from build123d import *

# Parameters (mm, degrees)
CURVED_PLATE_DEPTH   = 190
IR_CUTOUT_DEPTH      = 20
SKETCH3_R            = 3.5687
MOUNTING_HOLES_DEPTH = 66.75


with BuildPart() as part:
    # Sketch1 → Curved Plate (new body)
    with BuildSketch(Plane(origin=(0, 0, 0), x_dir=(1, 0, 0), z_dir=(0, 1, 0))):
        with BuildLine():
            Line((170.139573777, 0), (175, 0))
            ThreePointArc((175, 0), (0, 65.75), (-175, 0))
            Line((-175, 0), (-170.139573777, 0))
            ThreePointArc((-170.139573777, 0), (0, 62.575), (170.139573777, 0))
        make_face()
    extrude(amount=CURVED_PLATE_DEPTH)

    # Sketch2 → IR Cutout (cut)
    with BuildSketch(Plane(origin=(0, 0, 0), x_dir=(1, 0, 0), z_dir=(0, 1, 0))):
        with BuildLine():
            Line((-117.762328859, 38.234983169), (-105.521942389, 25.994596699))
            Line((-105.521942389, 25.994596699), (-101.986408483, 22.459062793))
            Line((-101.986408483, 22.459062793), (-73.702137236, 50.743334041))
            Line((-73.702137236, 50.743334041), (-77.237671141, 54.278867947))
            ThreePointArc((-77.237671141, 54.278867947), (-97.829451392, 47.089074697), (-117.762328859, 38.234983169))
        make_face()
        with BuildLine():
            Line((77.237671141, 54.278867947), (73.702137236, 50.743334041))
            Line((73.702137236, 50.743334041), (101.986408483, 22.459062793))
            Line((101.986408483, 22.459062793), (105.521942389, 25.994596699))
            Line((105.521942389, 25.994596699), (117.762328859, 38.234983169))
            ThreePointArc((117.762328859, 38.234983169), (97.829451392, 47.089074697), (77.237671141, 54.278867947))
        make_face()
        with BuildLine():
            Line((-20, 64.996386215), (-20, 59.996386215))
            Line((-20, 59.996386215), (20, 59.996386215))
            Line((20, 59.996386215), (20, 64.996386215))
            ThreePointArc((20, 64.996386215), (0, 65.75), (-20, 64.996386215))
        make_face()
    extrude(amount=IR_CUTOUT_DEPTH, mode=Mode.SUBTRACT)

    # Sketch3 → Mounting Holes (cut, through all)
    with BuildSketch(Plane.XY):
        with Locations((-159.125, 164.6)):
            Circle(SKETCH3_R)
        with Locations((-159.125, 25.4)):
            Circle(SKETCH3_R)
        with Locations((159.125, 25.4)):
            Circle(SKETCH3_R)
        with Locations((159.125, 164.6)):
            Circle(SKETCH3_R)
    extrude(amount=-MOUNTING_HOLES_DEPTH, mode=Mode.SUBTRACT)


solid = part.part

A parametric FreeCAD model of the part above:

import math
import FreeCAD as App
import Part
import Sketcher

V = App.Vector
Q = App.Units.Quantity

doc = App.newDocument("Part")
body = doc.addObject("PartDesign::Body", "Body")

# Sketch on XZ plane
sketch1 = body.newObject("Sketcher::SketchObject", "Sketch")
sketch1.AttachmentSupport = (doc.getObject("XZ_Plane"), [""])
sketch1.MapMode = "FlatFace"
sketch1.addGeometry(Part.LineSegment(V(170.1, 0, 0), V(175, 0, 0)), False)
sketch1.addGeometry(Part.ArcOfCircle(Part.Circle(V(0, 200, 0), V(0, 0, 1), 265.8), math.radians(-131), math.radians(-49)), False)
sketch1.addGeometry(Part.LineSegment(V(-175, 0, 0), V(-170.1, 0, 0)), False)
sketch1.addGeometry(Part.ArcOfCircle(Part.Circle(V(0, 200, 0), V(0, 0, 1), 262.6), math.radians(-130), math.radians(-50)), False)
sketch1.addConstraint(Sketcher.Constraint("Coincident", 0, 2, 1, 2))
sketch1.addConstraint(Sketcher.Constraint("Coincident", 1, 1, 2, 1))
sketch1.addConstraint(Sketcher.Constraint("Coincident", 2, 2, 3, 1))
sketch1.addConstraint(Sketcher.Constraint("Coincident", 3, 2, 0, 1))
sketch1.addConstraint(Sketcher.Constraint("Horizontal", 0))
sketch1.addConstraint(Sketcher.Constraint("Horizontal", 2))
sketch1.addConstraint(Sketcher.Constraint("Coincident", 3, 3, 1, 3))
sketch1.addConstraint(Sketcher.Constraint("Symmetric", 0, 2, 1, 1, -1, 1))
sketch1.addConstraint(Sketcher.Constraint("PointOnObject", 1, 3, -2))
sketch1.addConstraint(Sketcher.Constraint("DistanceX", -1, 1, 0, 2, Q("175 mm")))
sketch1.addConstraint(Sketcher.Constraint("Radius", 1, Q("265.764734 mm")))
sketch1.addConstraint(Sketcher.Constraint("Radius", 3, Q("262.589734 mm")))
pad1 = body.newObject("PartDesign::Pad", "Pad")
pad1.Profile = sketch1
pad1.Length = 190
pad1.Reversed = True

# Sketch on XZ plane
sketch2 = body.newObject("Sketcher::SketchObject", "Sketch001")
sketch2.AttachmentSupport = (doc.getObject("XZ_Plane"), [""])
sketch2.MapMode = "FlatFace"
sketch2.addGeometry(Part.LineSegment(V(-117.8, -38.2, 0), V(-102, -22.5, 0)), False)
sketch2.addGeometry(Part.LineSegment(V(-102, -22.5, 0), V(-73.7, -50.7, 0)), False)
sketch2.addGeometry(Part.LineSegment(V(-73.7, -50.7, 0), V(-77.2, -54.3, 0)), False)
sketch2.addGeometry(Part.ArcOfCircle(Part.Circle(V(0, 200, 0), V(0, 0, 1), 265.8), math.radians(-116.3), math.radians(-106.9)), False)
sketch2.addGeometry(Part.LineSegment(V(77.2, -54.3, 0), V(73.7, -50.7, 0)), False)
sketch2.addGeometry(Part.LineSegment(V(73.7, -50.7, 0), V(102, -22.5, 0)), False)
sketch2.addGeometry(Part.LineSegment(V(102, -22.5, 0), V(117.8, -38.2, 0)), False)
sketch2.addGeometry(Part.ArcOfCircle(Part.Circle(V(0, 200, 0), V(0, 0, 1), 265.8), math.radians(-73.1), math.radians(-63.7)), False)
sketch2.addGeometry(Part.LineSegment(V(-20, -65, 0), V(-20, -60, 0)), False)
sketch2.addGeometry(Part.LineSegment(V(-20, -60, 0), V(20, -60, 0)), False)
sketch2.addGeometry(Part.LineSegment(V(20, -60, 0), V(20, -65, 0)), False)
sketch2.addGeometry(Part.ArcOfCircle(Part.Circle(V(0, 200, 0), V(0, 0, 1), 265.8), math.radians(-94.32), math.radians(-85.68)), False)
sketch2.addConstraint(Sketcher.Constraint("Coincident", 0, 2, 1, 1))
sketch2.addConstraint(Sketcher.Constraint("Coincident", 1, 2, 2, 1))
sketch2.addConstraint(Sketcher.Constraint("Coincident", 2, 2, 3, 2))
sketch2.addConstraint(Sketcher.Constraint("Coincident", 3, 1, 0, 1))
sketch2.addConstraint(Sketcher.Constraint("Coincident", 4, 2, 5, 1))
sketch2.addConstraint(Sketcher.Constraint("Coincident", 5, 2, 6, 1))
sketch2.addConstraint(Sketcher.Constraint("Coincident", 6, 2, 7, 2))
sketch2.addConstraint(Sketcher.Constraint("Coincident", 7, 1, 4, 1))
sketch2.addConstraint(Sketcher.Constraint("Coincident", 8, 2, 9, 1))
sketch2.addConstraint(Sketcher.Constraint("Coincident", 9, 2, 10, 1))
sketch2.addConstraint(Sketcher.Constraint("Coincident", 10, 2, 11, 2))
sketch2.addConstraint(Sketcher.Constraint("Coincident", 11, 1, 8, 1))
sketch2.addConstraint(Sketcher.Constraint("Vertical", 8))
sketch2.addConstraint(Sketcher.Constraint("Horizontal", 9))
sketch2.addConstraint(Sketcher.Constraint("Vertical", 10))
sketch2.addConstraint(Sketcher.Constraint("Coincident", 7, 3, 3, 3))
sketch2.addConstraint(Sketcher.Constraint("Coincident", 11, 3, 3, 3))
sketch2.addConstraint(Sketcher.Constraint("Equal", 3, 7))
sketch2.addConstraint(Sketcher.Constraint("Equal", 7, 11))
sketch2.addConstraint(Sketcher.Constraint("Symmetric", 1, 2, 4, 2, -2))
sketch2.addConstraint(Sketcher.Constraint("Symmetric", 0, 2, 5, 2, -2))
sketch2.addConstraint(Sketcher.Constraint("Symmetric", 3, 1, 6, 2, -2))
sketch2.addConstraint(Sketcher.Constraint("Perpendicular", 0, 1))
sketch2.addConstraint(Sketcher.Constraint("Perpendicular", 1, 2))
sketch2.addConstraint(Sketcher.Constraint("Perpendicular", 2, 4))
sketch2.addConstraint(Sketcher.Constraint("Perpendicular", 4, 5))
sketch2.addConstraint(Sketcher.Constraint("Horizontal", 10, 2, 11, 1))
sketch2.addConstraint(Sketcher.Constraint("DistanceX", 9, 1, 9, 2, Q("40 mm")))
sketch2.addConstraint(Sketcher.Constraint("DistanceY", 8, 1, 8, 2, Q("5 mm")))
sketch2.addConstraint(Sketcher.Constraint("Distance", 1, Q("40 mm")))
sketch2.addConstraint(Sketcher.Constraint("Distance", 2, Q("5 mm")))
sketch2.addConstraint(Sketcher.Constraint("DistanceX", 2, 2, 6, 2, Q("195 mm")))
sketch2.addConstraint(Sketcher.Constraint("Radius", 3, Q("265.764734 mm")))
sketch2.addConstraint(Sketcher.Constraint("DistanceY", -1, 1, 3, 3, Q("200.014734 mm")))
pocket1 = body.newObject("PartDesign::Pocket", "Pocket")
pocket1.Profile = sketch2
pocket1.Length = 20

# Sketch on XY plane
sketch3 = body.newObject("Sketcher::SketchObject", "Sketch002")
sketch3.AttachmentSupport = (doc.getObject("XY_Plane"), [""])
sketch3.MapMode = "FlatFace"
sketch3.addGeometry(Part.Circle(V(-159.1, 164.6, 0), V(0, 0, 1), 3.6), False)
sketch3.addGeometry(Part.Circle(V(-159.1, 25.4, 0), V(0, 0, 1), 3.6), False)
sketch3.addGeometry(Part.Circle(V(159.1, 25.4, 0), V(0, 0, 1), 3.6), False)
sketch3.addGeometry(Part.Circle(V(159.1, 164.6, 0), V(0, 0, 1), 3.6), False)
sketch3.addConstraint(Sketcher.Constraint("Equal", 0, 1))
sketch3.addConstraint(Sketcher.Constraint("Equal", 1, 2))
sketch3.addConstraint(Sketcher.Constraint("Equal", 2, 3))
sketch3.addConstraint(Sketcher.Constraint("Symmetric", 1, 3, 2, 3, -2))
sketch3.addConstraint(Sketcher.Constraint("Symmetric", 0, 3, 3, 3, -2))
sketch3.addConstraint(Sketcher.Constraint("Vertical", 0, 3, 1, 3))
sketch3.addConstraint(Sketcher.Constraint("Diameter", 0, Q("7.1374 mm")))
sketch3.addConstraint(Sketcher.Constraint("DistanceY", -1, 1, 0, 3, Q("164.6 mm")))
sketch3.addConstraint(Sketcher.Constraint("DistanceY", -1, 1, 1, 3, Q("25.4 mm")))
sketch3.addConstraint(Sketcher.Constraint("DistanceX", 1, 3, 2, 3, Q("318.25 mm")))
pocket2 = body.newObject("PartDesign::Pocket", "Pocket001")
pocket2.Profile = sketch3
pocket2.Type = "ThroughAll"

doc.recompute()
